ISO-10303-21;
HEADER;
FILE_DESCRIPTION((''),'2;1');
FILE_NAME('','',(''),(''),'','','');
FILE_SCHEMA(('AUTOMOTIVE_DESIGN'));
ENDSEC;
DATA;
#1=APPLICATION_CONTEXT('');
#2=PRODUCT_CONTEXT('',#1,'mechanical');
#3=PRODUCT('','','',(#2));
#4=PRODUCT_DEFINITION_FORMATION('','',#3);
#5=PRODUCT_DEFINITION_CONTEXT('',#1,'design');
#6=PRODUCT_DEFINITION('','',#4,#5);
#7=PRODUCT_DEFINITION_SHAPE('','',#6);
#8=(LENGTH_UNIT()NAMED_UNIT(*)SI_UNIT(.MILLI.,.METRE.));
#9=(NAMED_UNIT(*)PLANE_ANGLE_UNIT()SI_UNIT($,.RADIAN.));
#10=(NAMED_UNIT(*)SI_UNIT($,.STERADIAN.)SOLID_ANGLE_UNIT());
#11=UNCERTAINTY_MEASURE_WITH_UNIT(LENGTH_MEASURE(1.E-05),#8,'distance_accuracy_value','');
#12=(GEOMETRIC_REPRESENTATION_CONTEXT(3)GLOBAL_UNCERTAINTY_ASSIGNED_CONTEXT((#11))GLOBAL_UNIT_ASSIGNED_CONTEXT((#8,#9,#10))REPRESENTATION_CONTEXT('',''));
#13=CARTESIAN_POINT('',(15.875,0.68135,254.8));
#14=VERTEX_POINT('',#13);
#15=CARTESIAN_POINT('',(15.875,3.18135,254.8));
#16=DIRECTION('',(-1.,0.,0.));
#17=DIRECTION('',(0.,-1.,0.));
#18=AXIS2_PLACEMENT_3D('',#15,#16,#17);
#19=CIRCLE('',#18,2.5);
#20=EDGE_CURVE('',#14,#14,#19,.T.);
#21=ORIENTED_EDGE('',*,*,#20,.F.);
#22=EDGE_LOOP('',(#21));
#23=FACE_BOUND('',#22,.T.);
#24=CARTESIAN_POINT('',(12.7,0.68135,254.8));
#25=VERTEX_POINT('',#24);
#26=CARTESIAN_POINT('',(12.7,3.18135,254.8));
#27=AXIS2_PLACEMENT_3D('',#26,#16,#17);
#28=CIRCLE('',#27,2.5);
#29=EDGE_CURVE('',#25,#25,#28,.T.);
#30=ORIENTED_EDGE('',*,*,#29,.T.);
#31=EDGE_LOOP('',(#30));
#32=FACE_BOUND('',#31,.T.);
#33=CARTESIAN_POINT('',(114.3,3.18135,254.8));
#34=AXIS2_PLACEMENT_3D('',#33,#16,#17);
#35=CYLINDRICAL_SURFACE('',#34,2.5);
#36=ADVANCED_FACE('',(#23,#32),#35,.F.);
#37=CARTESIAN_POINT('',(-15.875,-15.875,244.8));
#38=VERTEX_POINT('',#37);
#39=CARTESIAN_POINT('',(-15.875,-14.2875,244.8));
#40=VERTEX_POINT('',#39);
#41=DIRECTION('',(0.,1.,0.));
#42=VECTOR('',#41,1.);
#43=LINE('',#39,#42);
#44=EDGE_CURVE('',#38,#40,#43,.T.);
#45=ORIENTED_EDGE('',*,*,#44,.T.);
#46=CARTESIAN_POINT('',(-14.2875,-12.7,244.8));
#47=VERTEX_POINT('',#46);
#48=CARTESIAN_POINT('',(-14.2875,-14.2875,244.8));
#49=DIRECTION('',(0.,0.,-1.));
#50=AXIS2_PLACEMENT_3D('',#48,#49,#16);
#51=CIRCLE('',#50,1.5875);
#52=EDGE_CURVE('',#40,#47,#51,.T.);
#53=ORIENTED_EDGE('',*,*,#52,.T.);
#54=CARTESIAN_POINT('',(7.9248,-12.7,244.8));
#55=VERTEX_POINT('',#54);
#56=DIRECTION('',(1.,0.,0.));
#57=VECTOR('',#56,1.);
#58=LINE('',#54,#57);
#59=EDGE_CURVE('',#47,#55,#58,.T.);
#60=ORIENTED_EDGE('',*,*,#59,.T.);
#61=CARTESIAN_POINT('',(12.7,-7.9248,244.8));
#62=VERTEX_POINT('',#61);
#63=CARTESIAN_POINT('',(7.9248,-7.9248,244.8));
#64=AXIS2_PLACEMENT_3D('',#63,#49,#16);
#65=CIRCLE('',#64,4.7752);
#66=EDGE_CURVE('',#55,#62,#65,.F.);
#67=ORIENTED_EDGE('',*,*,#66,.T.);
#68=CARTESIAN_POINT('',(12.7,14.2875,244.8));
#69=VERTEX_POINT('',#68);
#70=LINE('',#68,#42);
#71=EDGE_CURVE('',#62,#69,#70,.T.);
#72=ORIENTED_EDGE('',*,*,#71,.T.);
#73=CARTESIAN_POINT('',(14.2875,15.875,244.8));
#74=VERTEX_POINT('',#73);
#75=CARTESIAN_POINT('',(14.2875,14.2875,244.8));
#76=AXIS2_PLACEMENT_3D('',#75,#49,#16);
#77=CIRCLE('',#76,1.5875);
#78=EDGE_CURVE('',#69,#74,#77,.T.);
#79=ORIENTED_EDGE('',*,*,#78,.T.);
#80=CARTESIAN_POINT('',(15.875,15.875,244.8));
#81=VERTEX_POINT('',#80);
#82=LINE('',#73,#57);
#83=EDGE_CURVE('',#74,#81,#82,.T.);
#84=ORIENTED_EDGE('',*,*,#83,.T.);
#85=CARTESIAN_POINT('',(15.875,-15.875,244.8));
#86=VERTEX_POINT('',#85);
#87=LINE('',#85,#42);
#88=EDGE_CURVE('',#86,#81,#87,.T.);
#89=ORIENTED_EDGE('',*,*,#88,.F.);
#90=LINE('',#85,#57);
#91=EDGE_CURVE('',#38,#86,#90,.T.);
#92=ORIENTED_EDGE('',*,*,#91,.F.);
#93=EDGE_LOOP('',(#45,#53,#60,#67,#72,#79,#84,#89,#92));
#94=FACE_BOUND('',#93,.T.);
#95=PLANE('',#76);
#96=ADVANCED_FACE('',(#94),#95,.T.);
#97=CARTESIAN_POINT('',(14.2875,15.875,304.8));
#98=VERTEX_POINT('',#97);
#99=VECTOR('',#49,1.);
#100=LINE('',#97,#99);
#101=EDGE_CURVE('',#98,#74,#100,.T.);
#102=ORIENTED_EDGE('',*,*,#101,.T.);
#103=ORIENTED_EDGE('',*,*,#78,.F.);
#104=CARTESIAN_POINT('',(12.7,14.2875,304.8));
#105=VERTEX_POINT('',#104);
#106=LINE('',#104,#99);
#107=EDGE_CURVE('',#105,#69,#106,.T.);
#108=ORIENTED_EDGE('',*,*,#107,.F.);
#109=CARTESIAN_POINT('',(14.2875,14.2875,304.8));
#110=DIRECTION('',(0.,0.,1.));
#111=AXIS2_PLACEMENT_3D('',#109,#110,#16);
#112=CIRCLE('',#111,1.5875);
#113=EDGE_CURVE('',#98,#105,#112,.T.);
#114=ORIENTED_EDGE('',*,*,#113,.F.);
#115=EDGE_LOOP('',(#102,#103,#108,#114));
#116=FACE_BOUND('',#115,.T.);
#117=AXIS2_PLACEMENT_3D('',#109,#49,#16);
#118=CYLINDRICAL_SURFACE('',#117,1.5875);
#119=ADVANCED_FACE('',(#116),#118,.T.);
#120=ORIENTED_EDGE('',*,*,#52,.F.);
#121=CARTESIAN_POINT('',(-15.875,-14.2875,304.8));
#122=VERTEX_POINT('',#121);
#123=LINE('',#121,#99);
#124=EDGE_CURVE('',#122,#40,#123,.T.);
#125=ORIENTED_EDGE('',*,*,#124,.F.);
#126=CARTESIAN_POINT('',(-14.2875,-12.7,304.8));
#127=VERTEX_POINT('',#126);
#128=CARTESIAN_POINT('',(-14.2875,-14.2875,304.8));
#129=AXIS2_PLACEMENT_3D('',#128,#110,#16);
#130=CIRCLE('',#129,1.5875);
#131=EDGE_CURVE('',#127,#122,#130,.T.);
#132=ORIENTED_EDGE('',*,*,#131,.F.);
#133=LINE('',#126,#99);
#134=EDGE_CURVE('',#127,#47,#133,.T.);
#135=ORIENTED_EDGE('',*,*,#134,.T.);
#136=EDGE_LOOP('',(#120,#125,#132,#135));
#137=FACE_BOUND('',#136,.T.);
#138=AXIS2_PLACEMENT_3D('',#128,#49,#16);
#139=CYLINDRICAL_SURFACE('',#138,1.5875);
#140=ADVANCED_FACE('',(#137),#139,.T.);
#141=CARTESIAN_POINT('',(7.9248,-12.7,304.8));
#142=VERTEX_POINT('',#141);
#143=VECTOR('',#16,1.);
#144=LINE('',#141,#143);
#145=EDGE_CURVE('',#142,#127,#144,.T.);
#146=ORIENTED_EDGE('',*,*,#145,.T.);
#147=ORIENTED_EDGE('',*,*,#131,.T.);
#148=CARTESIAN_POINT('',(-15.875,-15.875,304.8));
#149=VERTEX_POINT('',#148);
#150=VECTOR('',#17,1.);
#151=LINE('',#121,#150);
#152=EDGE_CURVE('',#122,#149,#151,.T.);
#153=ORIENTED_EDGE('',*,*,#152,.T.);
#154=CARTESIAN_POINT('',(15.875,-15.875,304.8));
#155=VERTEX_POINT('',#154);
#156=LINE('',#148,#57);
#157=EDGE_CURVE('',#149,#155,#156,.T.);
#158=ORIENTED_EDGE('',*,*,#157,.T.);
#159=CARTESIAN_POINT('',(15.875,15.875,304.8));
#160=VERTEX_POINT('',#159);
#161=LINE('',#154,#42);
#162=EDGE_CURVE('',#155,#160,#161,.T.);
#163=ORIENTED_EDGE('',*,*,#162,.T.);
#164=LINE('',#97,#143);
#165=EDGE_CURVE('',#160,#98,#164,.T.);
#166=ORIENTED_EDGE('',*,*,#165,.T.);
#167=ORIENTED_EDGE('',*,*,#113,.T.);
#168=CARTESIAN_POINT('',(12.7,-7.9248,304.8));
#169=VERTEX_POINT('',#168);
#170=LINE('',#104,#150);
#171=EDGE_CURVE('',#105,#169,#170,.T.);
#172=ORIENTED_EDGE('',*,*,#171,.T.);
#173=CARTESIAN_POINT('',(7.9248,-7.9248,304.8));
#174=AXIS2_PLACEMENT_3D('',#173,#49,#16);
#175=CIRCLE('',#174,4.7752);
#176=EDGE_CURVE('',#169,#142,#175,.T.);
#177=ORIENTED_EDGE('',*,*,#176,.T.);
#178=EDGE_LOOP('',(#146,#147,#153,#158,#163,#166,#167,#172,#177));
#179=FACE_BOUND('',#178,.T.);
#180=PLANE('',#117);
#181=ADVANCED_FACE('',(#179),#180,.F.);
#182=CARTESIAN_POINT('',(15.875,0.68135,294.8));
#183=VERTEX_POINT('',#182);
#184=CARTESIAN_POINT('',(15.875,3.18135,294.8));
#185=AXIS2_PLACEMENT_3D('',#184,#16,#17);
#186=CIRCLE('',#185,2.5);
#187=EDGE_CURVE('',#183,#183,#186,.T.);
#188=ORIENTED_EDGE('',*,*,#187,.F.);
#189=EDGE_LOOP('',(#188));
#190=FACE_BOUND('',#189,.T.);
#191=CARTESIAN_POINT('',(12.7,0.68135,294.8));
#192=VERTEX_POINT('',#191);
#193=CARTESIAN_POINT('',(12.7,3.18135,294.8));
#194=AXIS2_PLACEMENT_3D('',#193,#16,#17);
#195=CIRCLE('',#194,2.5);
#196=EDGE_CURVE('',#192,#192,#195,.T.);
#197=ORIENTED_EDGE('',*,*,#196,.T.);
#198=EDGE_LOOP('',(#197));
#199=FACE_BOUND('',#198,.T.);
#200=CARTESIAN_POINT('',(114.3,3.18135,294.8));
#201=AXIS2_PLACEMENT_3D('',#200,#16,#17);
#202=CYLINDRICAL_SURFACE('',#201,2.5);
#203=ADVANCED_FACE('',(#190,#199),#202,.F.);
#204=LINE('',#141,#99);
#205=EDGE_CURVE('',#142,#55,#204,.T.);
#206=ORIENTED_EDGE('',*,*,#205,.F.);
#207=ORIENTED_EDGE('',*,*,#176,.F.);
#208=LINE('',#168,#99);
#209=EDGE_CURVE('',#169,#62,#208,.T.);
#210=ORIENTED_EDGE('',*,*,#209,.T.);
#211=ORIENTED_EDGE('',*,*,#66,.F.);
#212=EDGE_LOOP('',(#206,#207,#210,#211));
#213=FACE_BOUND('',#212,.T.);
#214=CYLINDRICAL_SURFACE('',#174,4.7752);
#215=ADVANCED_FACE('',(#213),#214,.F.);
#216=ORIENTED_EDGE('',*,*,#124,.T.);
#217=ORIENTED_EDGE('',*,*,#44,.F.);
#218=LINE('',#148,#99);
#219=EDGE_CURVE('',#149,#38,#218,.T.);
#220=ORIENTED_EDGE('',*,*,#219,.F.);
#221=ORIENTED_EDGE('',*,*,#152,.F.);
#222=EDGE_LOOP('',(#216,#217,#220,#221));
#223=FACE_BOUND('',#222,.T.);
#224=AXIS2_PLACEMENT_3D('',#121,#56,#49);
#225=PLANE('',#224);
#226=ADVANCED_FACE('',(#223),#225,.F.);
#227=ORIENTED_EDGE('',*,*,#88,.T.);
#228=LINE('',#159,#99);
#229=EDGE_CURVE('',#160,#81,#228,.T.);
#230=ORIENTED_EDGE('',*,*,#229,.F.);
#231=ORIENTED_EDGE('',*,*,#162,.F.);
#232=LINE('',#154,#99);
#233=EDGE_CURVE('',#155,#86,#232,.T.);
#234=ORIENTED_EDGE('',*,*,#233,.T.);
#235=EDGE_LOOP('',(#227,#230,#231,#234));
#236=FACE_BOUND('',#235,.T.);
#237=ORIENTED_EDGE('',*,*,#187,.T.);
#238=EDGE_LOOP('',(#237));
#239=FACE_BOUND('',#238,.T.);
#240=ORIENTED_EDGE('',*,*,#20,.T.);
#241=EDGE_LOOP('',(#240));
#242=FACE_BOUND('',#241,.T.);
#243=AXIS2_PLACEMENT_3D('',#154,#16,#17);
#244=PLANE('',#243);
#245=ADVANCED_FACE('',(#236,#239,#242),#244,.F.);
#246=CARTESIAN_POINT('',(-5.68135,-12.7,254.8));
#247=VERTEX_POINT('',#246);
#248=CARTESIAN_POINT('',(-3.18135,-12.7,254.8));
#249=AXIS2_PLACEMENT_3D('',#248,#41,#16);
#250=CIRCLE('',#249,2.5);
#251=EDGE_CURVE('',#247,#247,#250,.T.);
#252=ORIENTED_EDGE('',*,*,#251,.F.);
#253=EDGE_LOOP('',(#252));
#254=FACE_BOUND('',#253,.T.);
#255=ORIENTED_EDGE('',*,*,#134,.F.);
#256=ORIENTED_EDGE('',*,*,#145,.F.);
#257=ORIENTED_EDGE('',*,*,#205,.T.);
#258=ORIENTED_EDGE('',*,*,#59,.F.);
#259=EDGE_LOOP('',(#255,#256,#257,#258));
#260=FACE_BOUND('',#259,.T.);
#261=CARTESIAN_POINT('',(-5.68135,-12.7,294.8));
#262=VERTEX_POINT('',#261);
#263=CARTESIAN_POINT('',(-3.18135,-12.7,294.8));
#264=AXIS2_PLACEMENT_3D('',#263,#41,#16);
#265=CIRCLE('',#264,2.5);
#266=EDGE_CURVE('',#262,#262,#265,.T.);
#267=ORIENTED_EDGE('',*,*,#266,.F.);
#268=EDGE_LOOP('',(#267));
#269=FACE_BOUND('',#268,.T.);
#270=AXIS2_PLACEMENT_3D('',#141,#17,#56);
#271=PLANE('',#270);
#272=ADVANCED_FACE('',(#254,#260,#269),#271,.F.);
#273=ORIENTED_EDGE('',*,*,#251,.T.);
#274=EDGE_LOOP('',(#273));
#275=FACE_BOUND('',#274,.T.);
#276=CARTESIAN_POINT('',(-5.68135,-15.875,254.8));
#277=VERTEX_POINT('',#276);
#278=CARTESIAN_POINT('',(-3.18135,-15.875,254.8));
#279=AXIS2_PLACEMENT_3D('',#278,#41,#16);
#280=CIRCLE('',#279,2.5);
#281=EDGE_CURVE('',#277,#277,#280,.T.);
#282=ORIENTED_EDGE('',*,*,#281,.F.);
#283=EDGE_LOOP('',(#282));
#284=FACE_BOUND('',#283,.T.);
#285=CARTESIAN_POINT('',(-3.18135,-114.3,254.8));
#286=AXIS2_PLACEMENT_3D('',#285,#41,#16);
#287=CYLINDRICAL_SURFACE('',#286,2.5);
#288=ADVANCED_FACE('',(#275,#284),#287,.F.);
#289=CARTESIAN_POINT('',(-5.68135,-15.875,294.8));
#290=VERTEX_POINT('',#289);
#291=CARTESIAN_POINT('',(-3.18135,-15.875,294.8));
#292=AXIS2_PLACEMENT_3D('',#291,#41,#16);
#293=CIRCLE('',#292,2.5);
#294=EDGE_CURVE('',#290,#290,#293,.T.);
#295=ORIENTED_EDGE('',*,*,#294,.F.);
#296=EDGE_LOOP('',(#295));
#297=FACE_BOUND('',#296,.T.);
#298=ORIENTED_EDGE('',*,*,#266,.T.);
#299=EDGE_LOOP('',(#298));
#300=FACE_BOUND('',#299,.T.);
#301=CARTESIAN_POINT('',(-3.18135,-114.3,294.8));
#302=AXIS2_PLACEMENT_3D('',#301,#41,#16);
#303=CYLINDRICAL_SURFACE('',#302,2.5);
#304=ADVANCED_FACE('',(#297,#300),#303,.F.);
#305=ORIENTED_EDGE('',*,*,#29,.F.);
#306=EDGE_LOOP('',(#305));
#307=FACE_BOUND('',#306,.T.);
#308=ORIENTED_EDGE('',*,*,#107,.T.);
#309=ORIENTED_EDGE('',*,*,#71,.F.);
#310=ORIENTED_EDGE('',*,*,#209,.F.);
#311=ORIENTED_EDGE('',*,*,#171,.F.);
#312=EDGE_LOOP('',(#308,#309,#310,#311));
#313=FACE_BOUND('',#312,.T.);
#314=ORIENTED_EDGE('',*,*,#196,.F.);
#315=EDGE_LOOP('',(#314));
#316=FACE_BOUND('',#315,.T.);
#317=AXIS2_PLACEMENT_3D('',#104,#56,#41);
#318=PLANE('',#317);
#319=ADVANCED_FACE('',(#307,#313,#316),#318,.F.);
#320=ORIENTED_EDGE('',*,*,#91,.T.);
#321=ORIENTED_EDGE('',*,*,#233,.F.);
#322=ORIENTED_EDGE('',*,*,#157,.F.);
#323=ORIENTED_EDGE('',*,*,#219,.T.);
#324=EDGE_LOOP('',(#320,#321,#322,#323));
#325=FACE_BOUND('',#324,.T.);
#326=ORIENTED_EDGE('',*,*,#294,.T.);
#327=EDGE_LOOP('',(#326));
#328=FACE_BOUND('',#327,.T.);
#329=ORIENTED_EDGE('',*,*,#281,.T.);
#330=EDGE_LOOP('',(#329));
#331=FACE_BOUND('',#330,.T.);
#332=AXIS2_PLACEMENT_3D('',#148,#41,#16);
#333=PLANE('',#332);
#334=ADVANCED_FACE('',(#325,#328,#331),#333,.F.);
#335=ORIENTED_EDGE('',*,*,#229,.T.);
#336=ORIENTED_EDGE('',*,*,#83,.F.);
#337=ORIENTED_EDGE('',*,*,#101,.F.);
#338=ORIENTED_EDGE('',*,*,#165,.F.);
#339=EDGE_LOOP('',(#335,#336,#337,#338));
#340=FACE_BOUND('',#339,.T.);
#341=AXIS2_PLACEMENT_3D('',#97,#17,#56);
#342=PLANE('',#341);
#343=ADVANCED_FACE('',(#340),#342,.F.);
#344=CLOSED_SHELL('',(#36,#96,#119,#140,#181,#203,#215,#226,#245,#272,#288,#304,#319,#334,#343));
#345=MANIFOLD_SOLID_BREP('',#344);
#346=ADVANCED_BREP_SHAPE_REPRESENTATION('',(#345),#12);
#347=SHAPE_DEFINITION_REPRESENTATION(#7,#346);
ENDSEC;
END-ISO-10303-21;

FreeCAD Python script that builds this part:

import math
import FreeCAD as App
import Part
import Sketcher
Q = App.Units.Quantity


def add_polygon(sketch, points):
    """Adds a closed chain of lines whose ends are joined by coincident constraints."""
    first, n = sketch.GeometryCount, len(points)
    for a, b in zip(points, points[1:] + points[:1]):
        sketch.addGeometry(Part.LineSegment(App.Vector(*a, 0), App.Vector(*b, 0)), False)
    for i in range(n):
        sketch.addConstraint(Sketcher.Constraint("Coincident", first + i, 2, first + (i + 1) % n, 1))

doc = App.newDocument("Part")
body = doc.addObject("PartDesign::Body", "Body")

sketch1 = body.newObject("Sketcher::SketchObject", "Sketch")
sketch1.AttachmentSupport = (doc.getObject("XY_Plane"), [""])
sketch1.MapMode = "FlatFace"
sketch1.addGeometry([
    Part.LineSegment(App.Vector(-15.875, -15.875, 0), App.Vector(15.875, -15.875, 0)),
    Part.LineSegment(App.Vector(15.875, -15.875, 0), App.Vector(15.875, 15.875, 0)),
    Part.LineSegment(App.Vector(15.875, 15.875, 0), App.Vector(14.2875, 15.875, 0)),
    Part.ArcOfCircle(Part.Circle(App.Vector(14.2875, 14.2875, 0), App.Vector(0, 0, 1), 1.5875), math.radians(90), math.radians(180)),
    Part.LineSegment(App.Vector(12.7, 14.2875, 0), App.Vector(12.7, -7.9248, 0)),
    Part.ArcOfCircle(Part.Circle(App.Vector(7.9248, -7.9248, 0), App.Vector(0, 0, 1), 4.7752), math.radians(-90), math.radians(0)),
    Part.LineSegment(App.Vector(7.9248, -12.7, 0), App.Vector(-14.2875, -12.7, 0)),
    Part.ArcOfCircle(Part.Circle(App.Vector(-14.2875, -14.2875, 0), App.Vector(0, 0, 1), 1.5875), math.radians(90), math.radians(180)),
    Part.LineSegment(App.Vector(-15.875, -14.2875, 0), App.Vector(-15.875, -15.875, 0)),
], False)
sketch1.addConstraint([
    Sketcher.Constraint("Coincident", 0, 2, 1, 1),
    Sketcher.Constraint("Coincident", 1, 2, 2, 1),
    Sketcher.Constraint("Tangent", 2, 2, 3, 1),
    Sketcher.Constraint("Tangent", 3, 2, 4, 1),
    Sketcher.Constraint("Tangent", 4, 2, 5, 2),
    Sketcher.Constraint("Tangent", 5, 1, 6, 1),
    Sketcher.Constraint("Tangent", 6, 2, 7, 1),
    Sketcher.Constraint("Tangent", 7, 2, 8, 1),
    Sketcher.Constraint("Coincident", 8, 2, 0, 1),
    Sketcher.Constraint("Horizontal", 0),
    Sketcher.Constraint("Vertical", 1),
    Sketcher.Constraint("Horizontal", 2),
    Sketcher.Constraint("Vertical", 4),
    Sketcher.Constraint("Horizontal", 6),
    Sketcher.Constraint("Vertical", 8),
    Sketcher.Constraint("Equal", 3, 7),
    Sketcher.Constraint("Symmetric", 3, 3, 7, 3, -1, 1),
    Sketcher.Constraint("Symmetric", 1, 2, 8, 2, -1, 1),
    Sketcher.Constraint("Equal", 0, 1),
    Sketcher.Constraint("Radius", 3, Q("0.0625 in")),
    Sketcher.Constraint("Radius", 5, Q("0.188 in")),
    Sketcher.Constraint("DistanceX", 0, 1, 0, 2, Q("1.25 in")),
])
pad1 = body.newObject("PartDesign::Pad", "Pad")
pad1.Profile = sketch1
pad1.Length = Q("24 in")
pad1.Midplane = True

sketch2 = body.newObject("Sketcher::SketchObject", "Sketch001")
sketch2.AttachmentSupport = (doc.getObject("XY_Plane"), [""])
sketch2.MapMode = "FlatFace"
sketch2.AttachmentOffset = App.Placement(App.Vector(0, 0, -12 * 25.4), App.Rotation())
add_polygon(sketch2, [(15.875, 17.78294), (15.875, -15.875), (-18.539455, -15.875), (-18.539455, 17.78294)])
sketch2.addConstraint([
    Sketcher.Constraint("Vertical", 0),
    Sketcher.Constraint("Horizontal", 1),
    Sketcher.Constraint("Vertical", 2),
    Sketcher.Constraint("Horizontal", 3),
    Sketcher.Constraint("DistanceX", 1, 2, 1, 1, Q("1.3548998 in")),
    Sketcher.Constraint("DistanceX", -1, 1, 0, 2, Q("0.625 in")),
    Sketcher.Constraint("DistanceY", 0, 2, -1, 1, Q("0.625 in")),
    Sketcher.Constraint("DistanceY", 0, 2, 0, 1, Q("33.65794 mm")),
])
pocket1 = body.newObject("PartDesign::Pocket", "Pocket")
pocket1.Profile = sketch2
pocket1.Length = 549.6
pocket1.Reversed = True

sketch3 = body.newObject("Sketcher::SketchObject", "Sketch002")
sketch3.AttachmentSupport = (doc.getObject("YZ_Plane"), [""])
sketch3.MapMode = "FlatFace"
sketch3.AttachmentOffset = App.Placement(App.Vector(0, 0, 0.5 * 25.4), App.Rotation())
sketch3.addGeometry([
    Part.Circle(App.Vector(3.18135, 294.8, 0), App.Vector(0, 0, 1), 2.5),
    Part.Circle(App.Vector(3.18135, 254.8, 0), App.Vector(0, 0, 1), 2.5),
], False)
sketch3.addConstraint([
    Sketcher.Constraint("Equal", 0, 1),
    Sketcher.Constraint("Vertical", 0, 3, 1, 3),
    Sketcher.Constraint("Diameter", 0, Q("5 mm")),
    Sketcher.Constraint("DistanceY", -1, 1, 0, 3, Q("294.8 mm")),
    Sketcher.Constraint("DistanceY", -1, 1, 1, 3, Q("254.8 mm")),
    Sketcher.Constraint("DistanceX", -1, 1, 0, 3, Q("3.18135 mm")),
])
pocket2 = body.newObject("PartDesign::Pocket", "Pocket001")
pocket2.Profile = sketch3
pocket2.Length = Q("4 in")
pocket2.Reversed = True

sketch4 = body.newObject("Sketcher::SketchObject", "Sketch003")
sketch4.AttachmentSupport = (doc.getObject("XZ_Plane"), [""])
sketch4.MapMode = "FlatFace"
sketch4.AttachmentOffset = App.Placement(App.Vector(0, 0, 0.5 * 25.4), App.Rotation())
sketch4.addGeometry([
    Part.Circle(App.Vector(-3.18135, 254.8, 0), App.Vector(0, 0, 1), 2.5),
    Part.Circle(App.Vector(-3.18135, 294.8, 0), App.Vector(0, 0, 1), 2.5),
], False)
sketch4.addConstraint([
    Sketcher.Constraint("Equal", 0, 1),
    Sketcher.Constraint("Vertical", 0, 3, 1, 3),
    Sketcher.Constraint("Diameter", 0, Q("5 mm")),
    Sketcher.Constraint("DistanceY", -1, 1, 0, 3, Q("254.8 mm")),
    Sketcher.Constraint("DistanceY", -1, 1, 1, 3, Q("294.8 mm")),
    Sketcher.Constraint("DistanceX", 0, 3, -1, 1, Q("3.18135 mm")),
])
pocket3 = body.newObject("PartDesign::Pocket", "Pocket002")
pocket3.Profile = sketch4
pocket3.Length = Q("4 in")
pocket3.Reversed = True

doc.recompute()
